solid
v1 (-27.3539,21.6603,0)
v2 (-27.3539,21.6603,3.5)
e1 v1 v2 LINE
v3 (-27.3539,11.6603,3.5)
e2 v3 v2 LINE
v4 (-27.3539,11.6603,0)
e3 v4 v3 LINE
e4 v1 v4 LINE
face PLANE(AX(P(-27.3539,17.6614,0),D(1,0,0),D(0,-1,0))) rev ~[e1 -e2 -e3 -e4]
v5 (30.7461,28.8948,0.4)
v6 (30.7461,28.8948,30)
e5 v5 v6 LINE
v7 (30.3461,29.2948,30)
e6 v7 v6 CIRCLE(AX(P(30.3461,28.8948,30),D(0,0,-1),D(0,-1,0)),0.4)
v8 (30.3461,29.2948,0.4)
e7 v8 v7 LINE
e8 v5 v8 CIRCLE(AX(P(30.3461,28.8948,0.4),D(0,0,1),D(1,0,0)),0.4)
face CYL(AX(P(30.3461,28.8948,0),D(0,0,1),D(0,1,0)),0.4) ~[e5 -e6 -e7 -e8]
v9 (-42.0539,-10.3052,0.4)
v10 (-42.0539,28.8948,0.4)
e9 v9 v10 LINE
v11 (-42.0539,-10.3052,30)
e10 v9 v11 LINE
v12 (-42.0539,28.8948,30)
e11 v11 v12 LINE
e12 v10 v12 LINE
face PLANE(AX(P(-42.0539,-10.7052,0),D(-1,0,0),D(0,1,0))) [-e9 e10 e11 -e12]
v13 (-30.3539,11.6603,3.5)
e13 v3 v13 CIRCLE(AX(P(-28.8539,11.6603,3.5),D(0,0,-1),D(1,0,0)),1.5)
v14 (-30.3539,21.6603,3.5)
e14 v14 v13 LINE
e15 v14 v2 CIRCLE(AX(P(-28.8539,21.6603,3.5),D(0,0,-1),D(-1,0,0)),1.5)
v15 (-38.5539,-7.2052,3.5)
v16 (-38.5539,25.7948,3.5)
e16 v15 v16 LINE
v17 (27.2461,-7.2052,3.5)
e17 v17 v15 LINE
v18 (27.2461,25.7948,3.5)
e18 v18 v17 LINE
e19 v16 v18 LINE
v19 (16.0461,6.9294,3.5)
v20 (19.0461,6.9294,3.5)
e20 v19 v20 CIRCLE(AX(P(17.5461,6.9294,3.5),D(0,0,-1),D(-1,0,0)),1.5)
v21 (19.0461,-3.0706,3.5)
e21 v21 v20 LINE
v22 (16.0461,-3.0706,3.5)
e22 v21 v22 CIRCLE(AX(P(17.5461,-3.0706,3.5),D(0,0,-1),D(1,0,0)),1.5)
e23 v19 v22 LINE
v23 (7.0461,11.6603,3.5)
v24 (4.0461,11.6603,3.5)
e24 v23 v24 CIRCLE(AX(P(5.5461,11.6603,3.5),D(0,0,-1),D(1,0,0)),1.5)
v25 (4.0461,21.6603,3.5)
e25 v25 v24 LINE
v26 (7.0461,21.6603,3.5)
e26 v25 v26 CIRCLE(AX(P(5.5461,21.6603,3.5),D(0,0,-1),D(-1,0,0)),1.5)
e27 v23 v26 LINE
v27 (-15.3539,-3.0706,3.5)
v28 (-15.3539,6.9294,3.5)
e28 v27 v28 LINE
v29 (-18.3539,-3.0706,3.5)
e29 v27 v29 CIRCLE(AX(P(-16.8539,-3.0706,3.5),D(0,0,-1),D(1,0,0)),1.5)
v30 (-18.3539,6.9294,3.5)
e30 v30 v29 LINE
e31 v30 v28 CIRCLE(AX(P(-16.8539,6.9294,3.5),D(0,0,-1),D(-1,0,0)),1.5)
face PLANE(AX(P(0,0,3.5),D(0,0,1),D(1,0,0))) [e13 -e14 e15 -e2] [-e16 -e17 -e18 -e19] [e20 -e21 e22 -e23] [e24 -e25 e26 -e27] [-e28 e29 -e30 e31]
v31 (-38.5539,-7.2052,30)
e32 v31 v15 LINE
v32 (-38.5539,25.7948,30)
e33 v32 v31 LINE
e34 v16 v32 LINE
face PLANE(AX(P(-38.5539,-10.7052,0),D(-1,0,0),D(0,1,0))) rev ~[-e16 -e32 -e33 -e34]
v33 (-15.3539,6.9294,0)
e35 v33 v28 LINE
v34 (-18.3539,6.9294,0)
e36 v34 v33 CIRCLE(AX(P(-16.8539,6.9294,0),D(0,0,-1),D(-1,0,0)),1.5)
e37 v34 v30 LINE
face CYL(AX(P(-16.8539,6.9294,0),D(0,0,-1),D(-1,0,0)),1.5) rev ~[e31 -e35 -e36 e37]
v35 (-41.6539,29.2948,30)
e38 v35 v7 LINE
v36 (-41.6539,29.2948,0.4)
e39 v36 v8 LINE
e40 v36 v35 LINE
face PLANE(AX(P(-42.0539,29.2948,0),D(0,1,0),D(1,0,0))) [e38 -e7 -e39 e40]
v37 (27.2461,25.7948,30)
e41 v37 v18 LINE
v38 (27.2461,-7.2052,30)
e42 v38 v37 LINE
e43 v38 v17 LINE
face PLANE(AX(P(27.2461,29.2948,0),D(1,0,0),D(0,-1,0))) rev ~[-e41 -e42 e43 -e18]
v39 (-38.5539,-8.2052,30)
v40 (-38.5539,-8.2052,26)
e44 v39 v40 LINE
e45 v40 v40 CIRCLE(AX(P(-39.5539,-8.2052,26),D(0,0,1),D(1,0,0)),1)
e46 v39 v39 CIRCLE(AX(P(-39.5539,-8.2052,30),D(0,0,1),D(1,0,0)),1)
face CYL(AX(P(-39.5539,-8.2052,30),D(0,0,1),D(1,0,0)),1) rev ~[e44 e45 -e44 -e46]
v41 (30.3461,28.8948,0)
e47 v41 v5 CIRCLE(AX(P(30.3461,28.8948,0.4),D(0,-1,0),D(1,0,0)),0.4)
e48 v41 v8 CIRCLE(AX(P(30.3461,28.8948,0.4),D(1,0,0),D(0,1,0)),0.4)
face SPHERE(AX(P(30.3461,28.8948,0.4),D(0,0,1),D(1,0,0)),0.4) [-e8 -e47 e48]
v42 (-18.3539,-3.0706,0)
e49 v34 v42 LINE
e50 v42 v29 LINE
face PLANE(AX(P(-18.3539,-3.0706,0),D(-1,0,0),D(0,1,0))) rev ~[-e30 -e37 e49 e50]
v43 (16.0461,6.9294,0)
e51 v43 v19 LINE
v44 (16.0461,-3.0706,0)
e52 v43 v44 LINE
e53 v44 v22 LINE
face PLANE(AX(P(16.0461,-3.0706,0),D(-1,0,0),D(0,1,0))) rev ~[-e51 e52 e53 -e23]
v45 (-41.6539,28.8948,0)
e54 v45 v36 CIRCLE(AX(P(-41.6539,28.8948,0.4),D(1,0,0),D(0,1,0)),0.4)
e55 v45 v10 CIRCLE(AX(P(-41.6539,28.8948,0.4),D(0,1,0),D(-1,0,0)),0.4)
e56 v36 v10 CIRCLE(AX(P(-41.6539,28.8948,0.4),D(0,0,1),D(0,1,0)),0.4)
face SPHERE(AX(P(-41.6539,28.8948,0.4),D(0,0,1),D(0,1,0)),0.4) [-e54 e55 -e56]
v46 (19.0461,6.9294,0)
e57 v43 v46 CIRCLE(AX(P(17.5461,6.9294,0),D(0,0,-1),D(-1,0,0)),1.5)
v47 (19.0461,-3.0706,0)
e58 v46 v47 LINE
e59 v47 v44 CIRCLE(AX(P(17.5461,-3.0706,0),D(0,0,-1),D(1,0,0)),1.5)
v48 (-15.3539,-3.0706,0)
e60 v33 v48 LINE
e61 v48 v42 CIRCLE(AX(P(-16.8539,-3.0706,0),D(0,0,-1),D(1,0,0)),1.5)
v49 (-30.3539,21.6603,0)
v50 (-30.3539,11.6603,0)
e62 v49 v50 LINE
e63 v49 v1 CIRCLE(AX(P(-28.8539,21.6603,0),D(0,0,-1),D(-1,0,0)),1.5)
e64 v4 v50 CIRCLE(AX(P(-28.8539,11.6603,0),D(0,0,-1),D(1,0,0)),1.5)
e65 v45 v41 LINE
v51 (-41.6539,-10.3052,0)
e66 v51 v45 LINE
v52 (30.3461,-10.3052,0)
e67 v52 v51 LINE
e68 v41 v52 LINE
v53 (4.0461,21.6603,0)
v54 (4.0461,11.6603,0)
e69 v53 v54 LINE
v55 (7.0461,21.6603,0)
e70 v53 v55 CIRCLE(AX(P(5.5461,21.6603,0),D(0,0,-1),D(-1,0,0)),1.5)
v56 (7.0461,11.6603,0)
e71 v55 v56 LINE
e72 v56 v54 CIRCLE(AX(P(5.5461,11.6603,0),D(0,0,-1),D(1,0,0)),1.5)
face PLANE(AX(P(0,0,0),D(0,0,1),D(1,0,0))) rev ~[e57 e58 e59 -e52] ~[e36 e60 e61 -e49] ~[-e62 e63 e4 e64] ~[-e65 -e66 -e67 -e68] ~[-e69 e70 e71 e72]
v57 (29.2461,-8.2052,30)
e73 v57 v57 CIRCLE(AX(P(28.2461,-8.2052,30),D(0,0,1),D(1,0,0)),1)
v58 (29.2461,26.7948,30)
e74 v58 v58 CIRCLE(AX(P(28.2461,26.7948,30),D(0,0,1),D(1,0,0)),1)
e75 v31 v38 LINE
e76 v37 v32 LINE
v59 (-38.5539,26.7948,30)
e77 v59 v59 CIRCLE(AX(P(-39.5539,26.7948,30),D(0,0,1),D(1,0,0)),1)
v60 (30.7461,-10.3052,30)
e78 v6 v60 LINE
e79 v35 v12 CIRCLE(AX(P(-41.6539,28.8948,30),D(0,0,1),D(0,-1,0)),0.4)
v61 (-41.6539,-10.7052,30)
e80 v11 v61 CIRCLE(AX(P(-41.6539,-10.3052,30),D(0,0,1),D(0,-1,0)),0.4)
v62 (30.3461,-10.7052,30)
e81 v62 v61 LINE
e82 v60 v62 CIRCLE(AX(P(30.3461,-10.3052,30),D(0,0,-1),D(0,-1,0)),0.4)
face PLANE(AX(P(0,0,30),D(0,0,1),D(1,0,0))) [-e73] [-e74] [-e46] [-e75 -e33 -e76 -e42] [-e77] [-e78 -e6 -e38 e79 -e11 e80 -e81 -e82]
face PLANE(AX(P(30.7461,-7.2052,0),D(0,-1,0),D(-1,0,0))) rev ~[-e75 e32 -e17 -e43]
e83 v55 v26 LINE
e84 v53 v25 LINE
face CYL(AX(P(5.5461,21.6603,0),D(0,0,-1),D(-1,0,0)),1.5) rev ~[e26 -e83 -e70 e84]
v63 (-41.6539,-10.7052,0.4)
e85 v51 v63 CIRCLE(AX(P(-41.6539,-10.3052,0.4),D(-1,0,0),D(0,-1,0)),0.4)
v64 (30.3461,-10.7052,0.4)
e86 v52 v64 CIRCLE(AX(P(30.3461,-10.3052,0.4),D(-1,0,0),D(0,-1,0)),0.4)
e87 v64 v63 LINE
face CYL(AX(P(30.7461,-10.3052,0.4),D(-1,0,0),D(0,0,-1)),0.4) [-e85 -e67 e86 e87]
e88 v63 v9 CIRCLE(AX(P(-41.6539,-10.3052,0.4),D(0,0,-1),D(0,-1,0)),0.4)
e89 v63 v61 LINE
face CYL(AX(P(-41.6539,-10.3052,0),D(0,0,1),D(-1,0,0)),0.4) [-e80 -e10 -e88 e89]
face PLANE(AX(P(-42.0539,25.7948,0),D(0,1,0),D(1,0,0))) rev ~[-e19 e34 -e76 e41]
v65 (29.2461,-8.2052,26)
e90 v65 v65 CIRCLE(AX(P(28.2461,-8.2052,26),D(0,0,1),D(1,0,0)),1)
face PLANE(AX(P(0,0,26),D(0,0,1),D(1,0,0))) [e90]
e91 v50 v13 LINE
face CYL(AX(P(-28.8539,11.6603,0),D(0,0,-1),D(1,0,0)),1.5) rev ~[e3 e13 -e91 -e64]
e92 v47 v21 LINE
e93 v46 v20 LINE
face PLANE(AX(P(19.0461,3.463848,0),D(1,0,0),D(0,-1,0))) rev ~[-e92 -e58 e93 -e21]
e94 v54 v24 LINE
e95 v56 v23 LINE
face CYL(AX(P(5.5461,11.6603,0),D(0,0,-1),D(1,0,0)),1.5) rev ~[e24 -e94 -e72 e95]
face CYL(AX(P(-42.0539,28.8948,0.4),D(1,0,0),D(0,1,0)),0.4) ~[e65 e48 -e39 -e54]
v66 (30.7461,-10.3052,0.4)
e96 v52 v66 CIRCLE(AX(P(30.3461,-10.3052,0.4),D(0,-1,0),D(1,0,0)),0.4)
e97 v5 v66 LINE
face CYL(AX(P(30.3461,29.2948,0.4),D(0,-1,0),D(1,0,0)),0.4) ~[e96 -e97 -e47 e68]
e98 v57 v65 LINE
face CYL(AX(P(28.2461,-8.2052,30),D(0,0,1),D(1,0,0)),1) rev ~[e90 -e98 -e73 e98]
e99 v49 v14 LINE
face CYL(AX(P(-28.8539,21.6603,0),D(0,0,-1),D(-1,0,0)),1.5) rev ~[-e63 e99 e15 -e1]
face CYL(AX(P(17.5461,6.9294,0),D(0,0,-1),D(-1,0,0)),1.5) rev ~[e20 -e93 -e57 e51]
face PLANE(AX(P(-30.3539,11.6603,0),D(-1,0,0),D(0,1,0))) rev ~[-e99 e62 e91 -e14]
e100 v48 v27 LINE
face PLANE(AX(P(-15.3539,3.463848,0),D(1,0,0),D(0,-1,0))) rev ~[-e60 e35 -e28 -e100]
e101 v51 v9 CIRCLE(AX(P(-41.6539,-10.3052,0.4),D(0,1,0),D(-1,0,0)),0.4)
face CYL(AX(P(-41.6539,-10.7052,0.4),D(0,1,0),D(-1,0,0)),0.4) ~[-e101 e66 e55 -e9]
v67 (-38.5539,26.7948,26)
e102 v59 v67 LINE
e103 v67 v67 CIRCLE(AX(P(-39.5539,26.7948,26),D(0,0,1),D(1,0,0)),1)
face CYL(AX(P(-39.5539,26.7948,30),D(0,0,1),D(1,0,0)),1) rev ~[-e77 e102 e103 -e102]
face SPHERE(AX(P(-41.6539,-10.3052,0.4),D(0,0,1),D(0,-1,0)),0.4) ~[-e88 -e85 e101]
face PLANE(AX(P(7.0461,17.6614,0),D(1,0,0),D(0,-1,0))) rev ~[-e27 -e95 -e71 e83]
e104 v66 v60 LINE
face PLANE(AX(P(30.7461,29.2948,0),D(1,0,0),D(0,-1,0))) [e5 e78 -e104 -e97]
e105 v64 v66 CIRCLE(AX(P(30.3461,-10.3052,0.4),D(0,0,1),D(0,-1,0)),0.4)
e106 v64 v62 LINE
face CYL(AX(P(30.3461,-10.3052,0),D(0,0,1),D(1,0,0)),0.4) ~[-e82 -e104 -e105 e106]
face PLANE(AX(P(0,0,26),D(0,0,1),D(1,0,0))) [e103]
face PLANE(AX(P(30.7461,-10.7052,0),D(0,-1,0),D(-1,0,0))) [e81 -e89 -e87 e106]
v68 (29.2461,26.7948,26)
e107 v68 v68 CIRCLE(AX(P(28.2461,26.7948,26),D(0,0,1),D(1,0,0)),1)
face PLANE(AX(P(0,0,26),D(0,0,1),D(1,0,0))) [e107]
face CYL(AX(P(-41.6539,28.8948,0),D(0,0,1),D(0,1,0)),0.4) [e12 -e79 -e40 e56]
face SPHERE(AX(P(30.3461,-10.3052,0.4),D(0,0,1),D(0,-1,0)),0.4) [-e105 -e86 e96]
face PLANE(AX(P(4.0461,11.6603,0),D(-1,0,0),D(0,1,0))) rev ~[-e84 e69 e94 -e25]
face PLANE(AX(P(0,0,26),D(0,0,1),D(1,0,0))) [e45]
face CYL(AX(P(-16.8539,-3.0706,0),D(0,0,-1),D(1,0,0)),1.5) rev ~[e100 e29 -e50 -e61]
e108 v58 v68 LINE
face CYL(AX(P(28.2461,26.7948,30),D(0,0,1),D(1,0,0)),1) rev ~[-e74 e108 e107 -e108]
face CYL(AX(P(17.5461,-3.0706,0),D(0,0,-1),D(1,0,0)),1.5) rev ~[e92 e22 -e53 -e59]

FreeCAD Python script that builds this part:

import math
import FreeCAD as App
import Part
import Sketcher
from FreeCAD import Vector
Q = App.Units.Quantity


def edges_at(feature, points):
    """Names of the edges that pass closest to the given points."""
    edges = feature.Shape.Edges
    near = lambda p: min(range(len(edges)), key=lambda i: edges[i].distToShape(Part.Vertex(*p))[0])
    return sorted({f"Edge{near(p) + 1}" for p in points})


def faces_at(feature, points):
    """Names of the faces that lie closest to the given points."""
    faces = feature.Shape.Faces
    near = lambda p: min(range(len(faces)), key=lambda i: faces[i].distToShape(Part.Vertex(*p))[0])
    return sorted({f"Face{near(p) + 1}" for p in points})


def add_polygon(sketch, points):
    """Adds a closed chain of lines whose ends are joined by coincident constraints."""
    first, n = sketch.GeometryCount, len(points)
    for a, b in zip(points, points[1:] + points[:1]):
        sketch.addGeometry(Part.LineSegment(App.Vector(*a, 0), App.Vector(*b, 0)), False)
    for i in range(n):
        sketch.addConstraint(Sketcher.Constraint("Coincident", first + i, 2, first + (i + 1) % n, 1))

doc = App.newDocument("Part")
params = doc.addObject("Spreadsheet::Sheet", "Params")
for row, (alias, value) in enumerate([
    ("sketch1_height", "40 mm"),
    ("sketch1_width", "72.8 mm"),
    ("pad1_length", "30 mm"),
    ("thickness_wall", "3.5 mm"),
    ("sketch2_diameter", "2 mm"),
    ("pocket1_length", "4 mm"),
    ("fillet_radius", "0.4 mm"),
    ("sketch3_radius", "1.5 mm"),
    ("sketch3_height", "10 mm"),
], start=1):
    params.set(f"A{row}", alias)
    params.set(f"B{row}", "=" + value)
    params.setAlias(f"B{row}", alias)

body = doc.addObject("PartDesign::Body", "Body")

# Sketch on XY plane
sketch1 = body.newObject("Sketcher::SketchObject", "Sketch")
sketch1.AttachmentSupport = (doc.getObject("XY_Plane"), [""])
sketch1.MapMode = "FlatFace"
add_polygon(sketch1, [(31, 29), (-42, 29), (-42, -11), (31, -11)])  # lines 0-3
sketch1.addConstraint(Sketcher.Constraint("Horizontal", 0))
sketch1.addConstraint(Sketcher.Constraint("Vertical", 1))
sketch1.addConstraint(Sketcher.Constraint("Horizontal", 2))
sketch1.addConstraint(Sketcher.Constraint("Vertical", 3))
sketch1.addConstraint(Sketcher.Constraint("DistanceY", 1, 2, 1, 1, Q("40 mm")))
sketch1.addConstraint(Sketcher.Constraint("DistanceX", 0, 2, 0, 1, Q("72.8 mm")))
sketch1.addConstraint(Sketcher.Constraint("DistanceX", 0, 2, -1, 1, Q("42.054 mm")))
sketch1.addConstraint(Sketcher.Constraint("DistanceY", -1, 1, 0, 2, Q("29.2948 mm")))
sketch1.setExpression("Constraints[8]", "Params.sketch1_height")
sketch1.setExpression("Constraints[9]", "Params.sketch1_width")
pad1 = body.newObject("PartDesign::Pad", "Pad")
pad1.Profile = sketch1
pad1.setExpression("Length", "Params.pad1_length")
doc.recompute()

thickness = body.newObject("PartDesign::Thickness", "Thickness")
thickness.Base = (pad1, faces_at(pad1, [(-17.787, 15.961, 30)]))
thickness.setExpression("Value", "Params.thickness_wall")
thickness.Reversed = True
thickness.Join = "Intersection"

# Sketch on XY plane
sketch2 = body.newObject("Sketcher::SketchObject", "Sketch001")
sketch2.AttachmentSupport = (doc.getObject("XY_Plane"), [""])
sketch2.MapMode = "FlatFace"
sketch2.AttachmentOffset = App.Placement(Vector(0, 0, 30), App.Rotation())
sketch2.addGeometry(Part.Circle(Vector(-39.6, 26.8, 0), Vector(0, 0, 1), 1), False)
sketch2.addGeometry(Part.Circle(Vector(28.2, 26.8, 0), Vector(0, 0, 1), 1), False)
sketch2.addGeometry(Part.Circle(Vector(28.2, -8.2, 0), Vector(0, 0, 1), 1), False)
sketch2.addGeometry(Part.Circle(Vector(-39.6, -8.2, 0), Vector(0, 0, 1), 1), False)
sketch2.addConstraint(Sketcher.Constraint("Equal", 0, 1))
sketch2.addConstraint(Sketcher.Constraint("Equal", 1, 2))
sketch2.addConstraint(Sketcher.Constraint("Equal", 2, 3))
sketch2.addConstraint(Sketcher.Constraint("Horizontal", 0, 3, 1, 3))
sketch2.addConstraint(Sketcher.Constraint("Horizontal", 2, 3, 3, 3))
sketch2.addConstraint(Sketcher.Constraint("Vertical", 1, 3, 2, 3))
sketch2.addConstraint(Sketcher.Constraint("Vertical", 0, 3, 3, 3))
sketch2.addConstraint(Sketcher.Constraint("Diameter", 0, Q("2 mm")))
sketch2.addConstraint(Sketcher.Constraint("DistanceY", 2, 3, 1, 3, Q("35 mm")))
sketch2.addConstraint(Sketcher.Constraint("DistanceX", 0, 3, 1, 3, Q("67.8 mm")))
sketch2.addConstraint(Sketcher.Constraint("DistanceX", 0, 3, -1, 1, Q("39.554 mm")))
sketch2.addConstraint(Sketcher.Constraint("DistanceY", -1, 1, 0, 3, Q("26.7948 mm")))
sketch2.setExpression("Constraints[7]", "Params.sketch2_diameter")
pocket1 = body.newObject("PartDesign::Pocket", "Pocket")
pocket1.Profile = sketch2
pocket1.setExpression("Length", "Params.pocket1_length")
doc.recompute()

fillet = body.newObject("PartDesign::Fillet", "Fillet")
fillet.Base = (pocket1, edges_at(pocket1, [
    (-42.054, 29.295, 15),
    (-42.054, -10.705, 15),
    (30.746, -10.705, 15),
    (30.746, 29.295, 15),
    (-5.654, -10.705, 0),
    (30.746, 9.295, 0),
    (-5.654, 29.295, 0),
    (-42.054, 9.295, 0),
]))
fillet.setExpression("Radius", "Params.fillet_radius")

# Sketch on XY plane
sketch3 = body.newObject("Sketcher::SketchObject", "Sketch002")
sketch3.AttachmentSupport = (doc.getObject("XY_Plane"), [""])
sketch3.MapMode = "FlatFace"
sketch3.addGeometry(Part.LineSegment(Vector(-30.4, 11.7, 0), Vector(-30.4, 21.7, 0)), False)
sketch3.addGeometry(Part.ArcOfCircle(Part.Circle(Vector(-28.9, 21.7, 0), Vector(0, 0, 1), 1.5), math.radians(0), math.radians(180)), False)
sketch3.addGeometry(Part.LineSegment(Vector(-27.4, 21.7, 0), Vector(-27.4, 11.7, 0)), False)
sketch3.addGeometry(Part.ArcOfCircle(Part.Circle(Vector(-28.9, 11.7, 0), Vector(0, 0, 1), 1.5), math.radians(180), math.radians(360)), False)
sketch3.addGeometry(Part.LineSegment(Vector(-18.4, -3.1, 0), Vector(-18.4, 6.9, 0)), False)
sketch3.addGeometry(Part.ArcOfCircle(Part.Circle(Vector(-16.9, 6.9, 0), Vector(0, 0, 1), 1.5), math.radians(0), math.radians(180)), False)
sketch3.addGeometry(Part.LineSegment(Vector(-15.4, 6.9, 0), Vector(-15.4, -3.1, 0)), False)
sketch3.addGeometry(Part.ArcOfCircle(Part.Circle(Vector(-16.9, -3.1, 0), Vector(0, 0, 1), 1.5), math.radians(180), math.radians(360)), False)
sketch3.addGeometry(Part.LineSegment(Vector(4, 11.7, 0), Vector(4, 21.7, 0)), False)
sketch3.addGeometry(Part.ArcOfCircle(Part.Circle(Vector(5.5, 21.7, 0), Vector(0, 0, 1), 1.5), math.radians(0), math.radians(180)), False)
sketch3.addGeometry(Part.LineSegment(Vector(7, 21.7, 0), Vector(7, 11.7, 0)), False)
sketch3.addGeometry(Part.ArcOfCircle(Part.Circle(Vector(5.5, 11.7, 0), Vector(0, 0, 1), 1.5), math.radians(180), math.radians(360)), False)
sketch3.addGeometry(Part.LineSegment(Vector(16, -3.1, 0), Vector(16, 6.9, 0)), False)
sketch3.addGeometry(Part.ArcOfCircle(Part.Circle(Vector(17.5, 6.9, 0), Vector(0, 0, 1), 1.5), math.radians(0), math.radians(180)), False)
sketch3.addGeometry(Part.LineSegment(Vector(19, 6.9, 0), Vector(19, -3.1, 0)), False)
sketch3.addGeometry(Part.ArcOfCircle(Part.Circle(Vector(17.5, -3.1, 0), Vector(0, 0, 1), 1.5), math.radians(180), math.radians(360)), False)
sketch3.addConstraint(Sketcher.Constraint("Tangent", 0, 2, 1, 2))
sketch3.addConstraint(Sketcher.Constraint("Tangent", 1, 1, 2, 1))
sketch3.addConstraint(Sketcher.Constraint("Tangent", 2, 2, 3, 2))
sketch3.addConstraint(Sketcher.Constraint("Tangent", 3, 1, 0, 1))
sketch3.addConstraint(Sketcher.Constraint("Tangent", 4, 2, 5, 2))
sketch3.addConstraint(Sketcher.Constraint("Tangent", 5, 1, 6, 1))
sketch3.addConstraint(Sketcher.Constraint("Tangent", 6, 2, 7, 2))
sketch3.addConstraint(Sketcher.Constraint("Tangent", 7, 1, 4, 1))
sketch3.addConstraint(Sketcher.Constraint("Tangent", 8, 2, 9, 2))
sketch3.addConstraint(Sketcher.Constraint("Tangent", 9, 1, 10, 1))
sketch3.addConstraint(Sketcher.Constraint("Tangent", 10, 2, 11, 2))
sketch3.addConstraint(Sketcher.Constraint("Tangent", 11, 1, 8, 1))
sketch3.addConstraint(Sketcher.Constraint("Tangent", 12, 2, 13, 2))
sketch3.addConstraint(Sketcher.Constraint("Tangent", 13, 1, 14, 1))
sketch3.addConstraint(Sketcher.Constraint("Tangent", 14, 2, 15, 2))
sketch3.addConstraint(Sketcher.Constraint("Tangent", 15, 1, 12, 1))
sketch3.addConstraint(Sketcher.Constraint("Vertical", 0))
sketch3.addConstraint(Sketcher.Constraint("Vertical", 2))
sketch3.addConstraint(Sketcher.Constraint("Vertical", 4))
sketch3.addConstraint(Sketcher.Constraint("Vertical", 6))
sketch3.addConstraint(Sketcher.Constraint("Vertical", 8))
sketch3.addConstraint(Sketcher.Constraint("Vertical", 10))
sketch3.addConstraint(Sketcher.Constraint("Vertical", 12))
sketch3.addConstraint(Sketcher.Constraint("Vertical", 14))
sketch3.addConstraint(Sketcher.Constraint("Equal", 3, 5))
sketch3.addConstraint(Sketcher.Constraint("Equal", 7, 9))
sketch3.addConstraint(Sketcher.Constraint("Equal", 11, 13))
sketch3.addConstraint(Sketcher.Constraint("Horizontal", 1, 3, 9, 3))
sketch3.addConstraint(Sketcher.Constraint("Horizontal", 3, 3, 11, 3))
sketch3.addConstraint(Sketcher.Constraint("Horizontal", 5, 3, 13, 3))
sketch3.addConstraint(Sketcher.Constraint("Horizontal", 7, 3, 15, 3))
sketch3.addConstraint(Sketcher.Constraint("Equal", 2, 4))
sketch3.addConstraint(Sketcher.Constraint("Radius", 1, Q("1.5 mm")))
sketch3.addConstraint(Sketcher.Constraint("DistanceX", 3, 3, 5, 3, Q("12 mm")))
sketch3.addConstraint(Sketcher.Constraint("DistanceX", 11, 3, 13, 3, Q("12 mm")))
sketch3.addConstraint(Sketcher.Constraint("DistanceY", 0, 1, 0, 2, Q("10 mm")))
sketch3.addConstraint(Sketcher.Constraint("DistanceX", 5, 3, 9, 3, Q("22.4 mm")))
sketch3.addConstraint(Sketcher.Constraint("DistanceX", 1, 3, -1, 1, Q("28.854 mm")))
sketch3.addConstraint(Sketcher.Constraint("DistanceY", 5, 3, 3, 3, Q("4.731 mm")))
sketch3.addConstraint(Sketcher.Constraint("DistanceY", -1, 1, 1, 3, Q("21.6603 mm")))
sketch3.setExpression("Constraints[32]", "Params.sketch3_radius")
sketch3.setExpression("Constraints[35]", "Params.sketch3_height")
pocket2 = body.newObject("PartDesign::Pocket", "Pocket001")
pocket2.Profile = sketch3
pocket2.Type = "ThroughAll"
pocket2.Reversed = True

doc.recompute()
